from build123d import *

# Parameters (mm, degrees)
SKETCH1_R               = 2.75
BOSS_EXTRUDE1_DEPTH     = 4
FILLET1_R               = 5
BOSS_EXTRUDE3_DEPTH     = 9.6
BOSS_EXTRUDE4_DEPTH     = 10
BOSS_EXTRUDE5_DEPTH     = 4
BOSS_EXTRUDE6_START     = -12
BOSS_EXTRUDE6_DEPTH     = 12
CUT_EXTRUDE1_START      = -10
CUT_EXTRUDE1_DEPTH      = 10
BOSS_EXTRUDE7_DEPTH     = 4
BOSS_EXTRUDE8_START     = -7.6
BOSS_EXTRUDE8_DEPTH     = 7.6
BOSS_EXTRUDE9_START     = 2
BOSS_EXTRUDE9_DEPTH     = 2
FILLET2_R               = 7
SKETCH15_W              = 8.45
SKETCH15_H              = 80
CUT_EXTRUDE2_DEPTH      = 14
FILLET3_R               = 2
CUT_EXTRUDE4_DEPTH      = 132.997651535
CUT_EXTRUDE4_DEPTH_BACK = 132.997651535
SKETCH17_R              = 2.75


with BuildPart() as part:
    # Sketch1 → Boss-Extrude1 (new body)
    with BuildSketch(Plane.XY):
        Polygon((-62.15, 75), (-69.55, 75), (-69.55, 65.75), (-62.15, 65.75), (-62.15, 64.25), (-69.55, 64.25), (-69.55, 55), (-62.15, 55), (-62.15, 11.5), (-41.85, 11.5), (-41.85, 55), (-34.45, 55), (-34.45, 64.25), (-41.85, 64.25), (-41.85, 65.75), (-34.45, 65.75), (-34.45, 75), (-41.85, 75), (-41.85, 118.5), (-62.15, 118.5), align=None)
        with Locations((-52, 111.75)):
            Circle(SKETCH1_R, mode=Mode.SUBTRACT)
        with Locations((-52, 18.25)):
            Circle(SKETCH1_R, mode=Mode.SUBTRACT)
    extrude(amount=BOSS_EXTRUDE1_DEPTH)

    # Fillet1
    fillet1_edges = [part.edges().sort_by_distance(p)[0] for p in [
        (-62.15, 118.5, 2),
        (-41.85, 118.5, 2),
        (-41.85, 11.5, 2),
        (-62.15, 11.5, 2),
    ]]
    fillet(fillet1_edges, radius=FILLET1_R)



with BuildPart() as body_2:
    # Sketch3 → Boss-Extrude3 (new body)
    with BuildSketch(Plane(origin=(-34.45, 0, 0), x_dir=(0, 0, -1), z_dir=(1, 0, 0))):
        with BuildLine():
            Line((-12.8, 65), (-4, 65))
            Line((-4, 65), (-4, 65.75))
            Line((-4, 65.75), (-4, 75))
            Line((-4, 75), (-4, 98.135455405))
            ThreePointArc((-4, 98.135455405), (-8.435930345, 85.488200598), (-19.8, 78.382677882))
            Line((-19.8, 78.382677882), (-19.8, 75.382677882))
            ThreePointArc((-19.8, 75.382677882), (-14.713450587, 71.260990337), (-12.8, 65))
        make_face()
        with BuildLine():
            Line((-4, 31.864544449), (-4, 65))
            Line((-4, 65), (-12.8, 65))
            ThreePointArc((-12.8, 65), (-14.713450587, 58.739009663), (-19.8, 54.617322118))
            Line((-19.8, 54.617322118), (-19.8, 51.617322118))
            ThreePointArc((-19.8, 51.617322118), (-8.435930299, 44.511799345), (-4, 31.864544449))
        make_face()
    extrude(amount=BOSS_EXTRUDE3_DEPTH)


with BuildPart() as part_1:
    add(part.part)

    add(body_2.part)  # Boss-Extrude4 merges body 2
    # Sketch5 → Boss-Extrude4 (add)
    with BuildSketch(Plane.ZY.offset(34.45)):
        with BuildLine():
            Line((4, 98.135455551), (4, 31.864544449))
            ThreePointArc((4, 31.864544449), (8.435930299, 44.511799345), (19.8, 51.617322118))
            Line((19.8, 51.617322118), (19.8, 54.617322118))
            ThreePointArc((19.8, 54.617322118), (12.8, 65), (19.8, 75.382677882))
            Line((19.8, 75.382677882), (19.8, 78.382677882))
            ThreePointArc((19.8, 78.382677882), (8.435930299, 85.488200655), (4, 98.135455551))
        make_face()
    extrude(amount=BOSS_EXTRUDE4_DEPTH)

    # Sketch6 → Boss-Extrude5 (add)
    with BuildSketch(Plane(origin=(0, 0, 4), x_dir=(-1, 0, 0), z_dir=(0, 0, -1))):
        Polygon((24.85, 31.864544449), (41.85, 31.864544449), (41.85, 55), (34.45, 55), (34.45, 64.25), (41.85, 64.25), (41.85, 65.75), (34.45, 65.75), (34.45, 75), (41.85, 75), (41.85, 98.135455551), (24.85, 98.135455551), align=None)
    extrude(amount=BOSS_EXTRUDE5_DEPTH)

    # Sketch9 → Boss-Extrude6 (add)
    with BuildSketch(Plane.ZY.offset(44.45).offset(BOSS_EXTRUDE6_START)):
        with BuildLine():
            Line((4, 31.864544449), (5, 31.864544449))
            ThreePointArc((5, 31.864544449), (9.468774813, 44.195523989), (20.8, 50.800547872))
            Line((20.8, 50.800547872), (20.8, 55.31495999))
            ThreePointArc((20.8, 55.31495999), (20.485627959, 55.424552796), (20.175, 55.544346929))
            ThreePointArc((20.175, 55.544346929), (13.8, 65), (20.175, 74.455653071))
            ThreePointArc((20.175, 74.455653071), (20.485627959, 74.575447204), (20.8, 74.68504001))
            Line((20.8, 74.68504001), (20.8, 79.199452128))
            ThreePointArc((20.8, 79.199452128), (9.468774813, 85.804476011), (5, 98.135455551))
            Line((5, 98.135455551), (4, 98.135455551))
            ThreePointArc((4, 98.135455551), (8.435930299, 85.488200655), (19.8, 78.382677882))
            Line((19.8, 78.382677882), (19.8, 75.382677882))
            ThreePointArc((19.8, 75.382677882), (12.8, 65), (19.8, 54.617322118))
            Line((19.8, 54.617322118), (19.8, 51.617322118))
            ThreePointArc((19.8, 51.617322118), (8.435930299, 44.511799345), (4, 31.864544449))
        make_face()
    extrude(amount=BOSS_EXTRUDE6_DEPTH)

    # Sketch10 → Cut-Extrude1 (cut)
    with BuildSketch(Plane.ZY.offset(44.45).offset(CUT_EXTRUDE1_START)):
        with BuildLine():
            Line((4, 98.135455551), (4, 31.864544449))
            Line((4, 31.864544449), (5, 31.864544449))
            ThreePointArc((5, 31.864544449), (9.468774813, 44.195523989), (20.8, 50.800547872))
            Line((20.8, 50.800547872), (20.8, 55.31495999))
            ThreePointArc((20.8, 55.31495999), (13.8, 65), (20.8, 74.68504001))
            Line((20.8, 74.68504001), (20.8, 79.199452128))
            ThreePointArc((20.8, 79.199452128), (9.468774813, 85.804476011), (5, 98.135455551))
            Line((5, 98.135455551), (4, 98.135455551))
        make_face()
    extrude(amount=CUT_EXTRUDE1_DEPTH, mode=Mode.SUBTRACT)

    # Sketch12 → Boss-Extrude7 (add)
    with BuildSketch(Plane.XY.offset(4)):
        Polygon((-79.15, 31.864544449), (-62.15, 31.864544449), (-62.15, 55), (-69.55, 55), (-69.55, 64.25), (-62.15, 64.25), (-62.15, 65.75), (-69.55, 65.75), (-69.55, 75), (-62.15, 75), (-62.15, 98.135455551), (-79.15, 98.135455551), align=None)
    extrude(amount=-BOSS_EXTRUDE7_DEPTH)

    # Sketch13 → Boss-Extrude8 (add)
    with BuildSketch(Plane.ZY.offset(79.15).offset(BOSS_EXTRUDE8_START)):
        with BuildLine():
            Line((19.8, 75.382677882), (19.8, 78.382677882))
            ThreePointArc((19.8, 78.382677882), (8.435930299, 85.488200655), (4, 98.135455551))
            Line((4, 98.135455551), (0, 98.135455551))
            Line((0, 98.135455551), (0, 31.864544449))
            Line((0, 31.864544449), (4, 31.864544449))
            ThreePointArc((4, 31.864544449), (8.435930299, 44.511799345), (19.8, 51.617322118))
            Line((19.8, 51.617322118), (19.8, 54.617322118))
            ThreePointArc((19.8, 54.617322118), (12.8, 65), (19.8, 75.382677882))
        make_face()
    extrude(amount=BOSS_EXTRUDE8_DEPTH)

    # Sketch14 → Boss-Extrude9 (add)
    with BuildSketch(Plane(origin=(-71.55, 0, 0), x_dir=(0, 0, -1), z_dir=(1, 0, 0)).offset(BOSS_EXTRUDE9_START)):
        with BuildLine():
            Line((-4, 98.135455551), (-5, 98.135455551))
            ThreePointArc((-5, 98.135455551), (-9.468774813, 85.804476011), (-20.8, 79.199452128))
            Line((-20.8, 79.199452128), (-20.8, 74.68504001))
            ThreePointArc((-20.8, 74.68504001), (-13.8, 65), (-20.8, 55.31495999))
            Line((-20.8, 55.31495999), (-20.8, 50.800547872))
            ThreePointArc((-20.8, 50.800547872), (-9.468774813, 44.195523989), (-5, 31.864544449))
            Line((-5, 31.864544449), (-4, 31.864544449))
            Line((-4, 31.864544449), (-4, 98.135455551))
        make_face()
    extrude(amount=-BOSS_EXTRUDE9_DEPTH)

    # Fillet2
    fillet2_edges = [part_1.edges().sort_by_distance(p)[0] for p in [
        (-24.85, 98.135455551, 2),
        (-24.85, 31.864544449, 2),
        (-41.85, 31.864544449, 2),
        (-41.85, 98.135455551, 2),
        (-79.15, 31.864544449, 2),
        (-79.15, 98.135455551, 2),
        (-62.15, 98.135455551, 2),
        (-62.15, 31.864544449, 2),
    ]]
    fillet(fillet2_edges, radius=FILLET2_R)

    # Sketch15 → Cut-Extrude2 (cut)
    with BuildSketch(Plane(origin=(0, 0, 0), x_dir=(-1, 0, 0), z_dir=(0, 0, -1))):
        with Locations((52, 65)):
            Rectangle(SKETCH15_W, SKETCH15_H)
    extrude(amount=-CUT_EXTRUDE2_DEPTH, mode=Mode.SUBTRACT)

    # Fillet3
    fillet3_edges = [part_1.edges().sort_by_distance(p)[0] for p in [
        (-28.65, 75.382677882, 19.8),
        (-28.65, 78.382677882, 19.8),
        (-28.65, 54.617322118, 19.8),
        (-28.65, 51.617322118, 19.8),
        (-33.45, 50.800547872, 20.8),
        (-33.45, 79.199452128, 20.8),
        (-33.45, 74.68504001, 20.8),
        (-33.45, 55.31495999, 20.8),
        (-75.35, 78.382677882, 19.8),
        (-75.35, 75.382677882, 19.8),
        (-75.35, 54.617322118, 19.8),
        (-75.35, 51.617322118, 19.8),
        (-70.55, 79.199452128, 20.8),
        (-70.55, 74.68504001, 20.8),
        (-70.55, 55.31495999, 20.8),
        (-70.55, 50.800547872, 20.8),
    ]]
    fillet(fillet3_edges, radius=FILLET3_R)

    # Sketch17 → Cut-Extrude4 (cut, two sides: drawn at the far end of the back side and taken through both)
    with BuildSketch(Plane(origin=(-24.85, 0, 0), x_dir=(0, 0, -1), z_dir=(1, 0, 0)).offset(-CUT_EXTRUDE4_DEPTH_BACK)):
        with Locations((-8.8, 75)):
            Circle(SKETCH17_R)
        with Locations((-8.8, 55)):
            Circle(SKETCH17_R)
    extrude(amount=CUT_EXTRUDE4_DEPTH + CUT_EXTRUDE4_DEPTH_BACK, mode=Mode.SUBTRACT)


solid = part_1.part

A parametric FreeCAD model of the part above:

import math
import FreeCAD as App
import Part
import Sketcher

V = App.Vector


def edges_at(feature, points):
    """Names of the edges that pass closest to the given points."""
    edges = feature.Shape.Edges
    near = lambda p: min(range(len(edges)), key=lambda i: edges[i].distToShape(Part.Vertex(*p))[0])
    return sorted({f"Edge{near(p) + 1}" for p in points})


def add_polygon(sketch, points):
    """Adds a closed chain of lines whose ends are joined by coincident constraints."""
    first, n = sketch.GeometryCount, len(points)
    for a, b in zip(points, points[1:] + points[:1]):
        sketch.addGeometry(Part.LineSegment(App.Vector(*a, 0), App.Vector(*b, 0)), False)
    for i in range(n):
        sketch.addConstraint(Sketcher.Constraint("Coincident", first + i, 2, first + (i + 1) % n, 1))

doc = App.newDocument("Part")
body = doc.addObject("PartDesign::Body", "Body")

sketch1 = doc.addObject("Sketcher::SketchObject", "Sketch")
body.addObject(sketch1)
sketch1.AttachmentSupport = (doc.XY_Plane, [""])
sketch1.MapMode = "FlatFace"
add_polygon(sketch1, [(-62.1, 75), (-69.5, 75), (-69.5, 65.8), (-62.1, 65.8), (-62.1, 64.2), (-69.5, 64.2), (-69.5, 55), (-62.1, 55), (-62.1, 11.5), (-41.9, 11.5), (-41.9, 55), (-34.5, 55), (-34.5, 64.2), (-41.9, 64.2), (-41.9, 65.8), (-34.5, 65.8), (-34.5, 75), (-41.9, 75), (-41.9, 118.5), (-62.1, 118.5)])
sketch1.addGeometry(Part.Circle(V(-52, 18.2, 0), V(0, 0, 1), 2.8), False)
sketch1.addGeometry(Part.Circle(V(-52, 111.8, 0), V(0, 0, 1), 2.8), False)
sketch1.addConstraint(Sketcher.Constraint("Horizontal", 0))
sketch1.addConstraint(Sketcher.Constraint("Vertical", 1))
sketch1.addConstraint(Sketcher.Constraint("Horizontal", 2))
sketch1.addConstraint(Sketcher.Constraint("Vertical", 3))
sketch1.addConstraint(Sketcher.Constraint("Horizontal", 4))
sketch1.addConstraint(Sketcher.Constraint("Vertical", 5))
sketch1.addConstraint(Sketcher.Constraint("Horizontal", 6))
sketch1.addConstraint(Sketcher.Constraint("Vertical", 7))
sketch1.addConstraint(Sketcher.Constraint("Horizontal", 8))
sketch1.addConstraint(Sketcher.Constraint("Vertical", 9))
sketch1.addConstraint(Sketcher.Constraint("Horizontal", 10))
sketch1.addConstraint(Sketcher.Constraint("Vertical", 11))
sketch1.addConstraint(Sketcher.Constraint("Horizontal", 12))
sketch1.addConstraint(Sketcher.Constraint("Vertical", 13))
sketch1.addConstraint(Sketcher.Constraint("Horizontal", 14))
sketch1.addConstraint(Sketcher.Constraint("Vertical", 15))
sketch1.addConstraint(Sketcher.Constraint("Horizontal", 16))
sketch1.addConstraint(Sketcher.Constraint("Vertical", 17))
sketch1.addConstraint(Sketcher.Constraint("Horizontal", 18))
sketch1.addConstraint(Sketcher.Constraint("Vertical", 19))
sketch1.addConstraint(Sketcher.Constraint("Equal", 20, 21))
sketch1.addConstraint(Sketcher.Constraint("Horizontal", 6, 2, 9, 2))
sketch1.addConstraint(Sketcher.Constraint("Horizontal", 4, 2, 11, 2))
sketch1.addConstraint(Sketcher.Constraint("Horizontal", 2, 2, 13, 2))
sketch1.addConstraint(Sketcher.Constraint("Horizontal", 0, 2, 15, 2))
sketch1.addConstraint(Sketcher.Constraint("Vertical", 20, 3, 21, 3))
sketch1.addConstraint(Sketcher.Constraint("Vertical", 1, 2, 4, 2))
sketch1.addConstraint(Sketcher.Constraint("Vertical", 3, 2, 6, 2))
sketch1.addConstraint(Sketcher.Constraint("Vertical", 9, 2, 12, 2))
sketch1.addConstraint(Sketcher.Constraint("Vertical", 11, 2, 14, 2))
sketch1.addConstraint(Sketcher.Constraint("Vertical", 13, 2, 16, 2))
sketch1.addConstraint(Sketcher.Constraint("Vertical", 7, 2, 18, 2))
sketch1.addConstraint(Sketcher.Constraint("Equal", 6, 10))
sketch1.addConstraint(Sketcher.Constraint("Equal", 1, 5))
sketch1.addConstraint(Sketcher.Constraint("Equal", 9, 17))
sketch1.addConstraint(Sketcher.Constraint("Diameter", 20, 5.5))
sketch1.addConstraint(Sketcher.Constraint("DistanceX", 0, 2, 0, 1, 7.4))
sketch1.addConstraint(Sketcher.Constraint("DistanceX", 8, 1, 8, 2, 20.3))
sketch1.addConstraint(Sketcher.Constraint("DistanceY", 3, 2, 3, 1, 1.5))
sketch1.addConstraint(Sketcher.Constraint("DistanceY", 7, 2, 7, 1, 43.5))
sketch1.addConstraint(Sketcher.Constraint("DistanceX", 20, 3, -1, 1, 52.0))
sketch1.addConstraint(Sketcher.Constraint("DistanceY", -1, 1, 0, 2, 75.0))
sketch1.addConstraint(Sketcher.Constraint("DistanceY", -1, 1, 5, 2, 55.0))
sketch1.addConstraint(Sketcher.Constraint("DistanceY", 1, 2, 21, 3, 46.0))
sketch1.addConstraint(Sketcher.Constraint("DistanceY", 20, 3, 3, 2, 46.0))
sketch1.addConstraint(Sketcher.Constraint("DistanceX", 0, 2, -1, 1, 69.55))
pad1 = doc.addObject("PartDesign::Pad", "Pad")
body.addObject(pad1)
pad1.Profile = sketch1
pad1.Length = 4
doc.recompute()

fillet = doc.addObject("PartDesign::Fillet", "Fillet")
body.addObject(fillet)
fillet.Base = (pad1, edges_at(pad1, [
    (-62.15, 118.5, 2),
    (-41.85, 118.5, 2),
    (-41.85, 11.5, 2),
    (-62.15, 11.5, 2),
]))
fillet.Radius = 5
body2 = doc.addObject("PartDesign::Body", "Body001")

sketch2 = doc.addObject("Sketcher::SketchObject", "Sketch001")
body2.addObject(sketch2)
sketch2.AttachmentSupport = (doc.getObject("YZ_Plane001"), [""])
sketch2.MapMode = "FlatFace"
sketch2.AttachmentOffset = App.Placement(V(0, 0, -34.45), App.Rotation())
sketch2.addGeometry(Part.ArcOfCircle(Part.Circle(V(98.1, 24.2, 0), V(0, 0, 1), 20.2), math.radians(-167), math.radians(-90)), False)
sketch2.addGeometry(Part.LineSegment(V(78.4, 19.8, 0), V(75.4, 19.8, 0)), False)
sketch2.addGeometry(Part.ArcOfCircle(Part.Circle(V(65, 24, 0), V(0, 0, 1), 11.2), math.radians(-90), math.radians(-22)), False)
sketch2.addGeometry(Part.ArcOfCircle(Part.Circle(V(65, 24, 0), V(0, 0, 1), 11.2), math.radians(-158), math.radians(-90)), False)
sketch2.addGeometry(Part.LineSegment(V(54.6, 19.8, 0), V(51.6, 19.8, 0)), False)
sketch2.addGeometry(Part.ArcOfCircle(Part.Circle(V(31.9, 24.2, 0), V(0, 0, 1), 20.2), math.radians(-90), math.radians(-13)), False)
sketch2.addGeometry(Part.LineSegment(V(31.9, 4, 0), V(98.1, 4, 0)), False)
sketch2.addConstraint(Sketcher.Constraint("Coincident", 0, 1, 1, 1))
sketch2.addConstraint(Sketcher.Constraint("Coincident", 1, 2, 2, 2))
sketch2.addConstraint(Sketcher.Constraint("Tangent", 2, 1, 3, 2))
sketch2.addConstraint(Sketcher.Constraint("Coincident", 3, 1, 4, 1))
sketch2.addConstraint(Sketcher.Constraint("Coincident", 4, 2, 5, 2))
sketch2.addConstraint(Sketcher.Constraint("Tangent", 5, 1, 6, 1))
sketch2.addConstraint(Sketcher.Constraint("Tangent", 6, 2, 0, 2))
sketch2.addConstraint(Sketcher.Constraint("Horizontal", 1))
sketch2.addConstraint(Sketcher.Constraint("Horizontal", 4))
sketch2.addConstraint(Sketcher.Constraint("Horizontal", 6))
sketch2.addConstraint(Sketcher.Constraint("Equal", 2, 3))
sketch2.addConstraint(Sketcher.Constraint("Equal", 0, 5))
sketch2.addConstraint(Sketcher.Constraint("Horizontal", 1, 2, 3, 1))
sketch2.addConstraint(Sketcher.Constraint("Vertical", 3, 3, 2, 1))
sketch2.addConstraint(Sketcher.Constraint("Equal", 1, 4))
sketch2.addConstraint(Sketcher.Constraint("Radius", 2, 11.2))
sketch2.addConstraint(Sketcher.Constraint("DistanceX", 1, 2, 1, 1, 3.0))
sketch2.addConstraint(Sketcher.Constraint("DistanceX", -1, 1, 2, 3, 65.0))
sketch2.addConstraint(Sketcher.Constraint("DistanceY", -1, 1, 2, 3, 24.0))
sketch2.addConstraint(Sketcher.Constraint("DistanceY", -1, 1, 5, 1, 4.0))
sketch2.addConstraint(Sketcher.Constraint("DistanceY", 2, 1, 1, 2, 7.0))
sketch2.addConstraint(Sketcher.Constraint("Radius", 0, 20.247222))
pad2 = doc.addObject("PartDesign::Pad", "Pad001")
body2.addObject(pad2)
pad2.Profile = sketch2
pad2.Length = 9.6
body.AllowCompound = True
doc.recompute()

boolean = doc.addObject("PartDesign::Boolean", "Boolean")
body.addObject(boolean)
boolean.Type = "Fuse"
boolean.addObjects([body2])

sketch3 = doc.addObject("Sketcher::SketchObject", "Sketch002")
body.addObject(sketch3)
sketch3.AttachmentSupport = (doc.YZ_Plane, [""])
sketch3.MapMode = "FlatFace"
sketch3.AttachmentOffset = App.Placement(V(0, 0, -34.45), App.Rotation())
sketch3.addGeometry(Part.LineSegment(V(98.1, 4, 0), V(31.9, 4, 0)), False)
sketch3.addGeometry(Part.ArcOfCircle(Part.Circle(V(31.9, 24.2, 0), V(0, 0, 1), 20.2), math.radians(-90), math.radians(-13)), False)
sketch3.addGeometry(Part.LineSegment(V(51.6, 19.8, 0), V(54.6, 19.8, 0)), False)
sketch3.addGeometry(Part.ArcOfCircle(Part.Circle(V(65, 24, 0), V(0, 0, 1), 11.2), math.radians(-158), math.radians(-22)), False)
sketch3.addGeometry(Part.LineSegment(V(75.4, 19.8, 0), V(78.4, 19.8, 0)), False)
sketch3.addGeometry(Part.ArcOfCircle(Part.Circle(V(98.1, 24.2, 0), V(0, 0, 1), 20.2), math.radians(-167), math.radians(-90)), False)
sketch3.addConstraint(Sketcher.Constraint("Tangent", 0, 2, 1, 1))
sketch3.addConstraint(Sketcher.Constraint("Coincident", 1, 2, 2, 1))
sketch3.addConstraint(Sketcher.Constraint("Coincident", 2, 2, 3, 1))
sketch3.addConstraint(Sketcher.Constraint("Coincident", 3, 2, 4, 1))
sketch3.addConstraint(Sketcher.Constraint("Coincident", 4, 2, 5, 1))
sketch3.addConstraint(Sketcher.Constraint("Tangent", 5, 2, 0, 1))
sketch3.addConstraint(Sketcher.Constraint("Horizontal", 0))
sketch3.addConstraint(Sketcher.Constraint("Horizontal", 2))
sketch3.addConstraint(Sketcher.Constraint("Horizontal", 4))
sketch3.addConstraint(Sketcher.Constraint("Equal", 1, 5))
sketch3.addConstraint(Sketcher.Constraint("Horizontal", 2, 2, 3, 2))
sketch3.addConstraint(Sketcher.Constraint("Equal", 2, 4))
sketch3.addConstraint(Sketcher.Constraint("Radius", 3, 11.2))
sketch3.addConstraint(Sketcher.Constraint("DistanceX", 2, 1, 2, 2, 3.0))
sketch3.addConstraint(Sketcher.Constraint("DistanceX", -1, 1, 3, 3, 65.0))
sketch3.addConstraint(Sketcher.Constraint("DistanceY", -1, 1, 3, 3, 24.0))
sketch3.addConstraint(Sketcher.Constraint("DistanceY", -1, 1, 0, 2, 4.0))
sketch3.addConstraint(Sketcher.Constraint("DistanceY", -1, 1, 1, 2, 19.8))
sketch3.addConstraint(Sketcher.Constraint("Radius", 1, 20.247222))
pad3 = doc.addObject("PartDesign::Pad", "Pad002")
body.addObject(pad3)
pad3.Profile = sketch3
pad3.Length = 10
pad3.Reversed = True

sketch4 = doc.addObject("Sketcher::SketchObject", "Sketch003")
body.addObject(sketch4)
sketch4.AttachmentSupport = (doc.XY_Plane, [""])
sketch4.MapMode = "FlatFace"
sketch4.AttachmentOffset = App.Placement(V(0, 0, 4), App.Rotation())
add_polygon(sketch4, [(-24.9, 31.9), (-41.9, 31.9), (-41.9, 55), (-34.5, 55), (-34.5, 64.2), (-41.9, 64.2), (-41.9, 65.8), (-34.5, 65.8), (-34.5, 75), (-41.9, 75), (-41.9, 98.1), (-24.9, 98.1)])
sketch4.addConstraint(Sketcher.Constraint("Horizontal", 0))
sketch4.addConstraint(Sketcher.Constraint("Vertical", 1))
sketch4.addConstraint(Sketcher.Constraint("Horizontal", 2))
sketch4.addConstraint(Sketcher.Constraint("Vertical", 3))
sketch4.addConstraint(Sketcher.Constraint("Horizontal", 4))
sketch4.addConstraint(Sketcher.Constraint("Vertical", 5))
sketch4.addConstraint(Sketcher.Constraint("Horizontal", 6))
sketch4.addConstraint(Sketcher.Constraint("Vertical", 7))
sketch4.addConstraint(Sketcher.Constraint("Horizontal", 8))
sketch4.addConstraint(Sketcher.Constraint("Vertical", 9))
sketch4.addConstraint(Sketcher.Constraint("Horizontal", 10))
sketch4.addConstraint(Sketcher.Constraint("Vertical", 11))
sketch4.addConstraint(Sketcher.Constraint("Vertical", 1, 2, 4, 2))
sketch4.addConstraint(Sketcher.Constraint("Vertical", 3, 2, 6, 2))
sketch4.addConstraint(Sketcher.Constraint("Vertical", 5, 2, 8, 2))
sketch4.addConstraint(Sketcher.Constraint("Equal", 3, 7))
sketch4.addConstraint(Sketcher.Constraint("Equal", 1, 9))
sketch4.addConstraint(Sketcher.Constraint("DistanceX", 0, 2, 0, 1, 17.0))
sketch4.addConstraint(Sketcher.Constraint("DistanceX", 2, 1, 2, 2, 7.4))
sketch4.addConstraint(Sketcher.Constraint("DistanceY", 5, 1, 5, 2, 1.5))
sketch4.addConstraint(Sketcher.Constraint("DistanceY", -1, 1, 1, 2, 55.0))
sketch4.addConstraint(Sketcher.Constraint("DistanceY", -1, 1, 7, 2, 75.0))
sketch4.addConstraint(Sketcher.Constraint("DistanceX", 0, 2, -1, 1, 41.85))
sketch4.addConstraint(Sketcher.Constraint("DistanceY", 11, 2, 11, 1, 66.270911))
pad4 = doc.addObject("PartDesign::Pad", "Pad003")
body.addObject(pad4)
pad4.Profile = sketch4
pad4.Length = 4
pad4.Reversed = True

sketch5 = doc.addObject("Sketcher::SketchObject", "Sketch004")
body.addObject(sketch5)
sketch5.AttachmentSupport = (doc.YZ_Plane, [""])
sketch5.MapMode = "FlatFace"
sketch5.AttachmentOffset = App.Placement(V(0, 0, -32.45), App.Rotation())
sketch5.addGeometry(Part.LineSegment(V(31.9, 4, 0), V(31.9, 5, 0)), False)
sketch5.addGeometry(Part.ArcOfCircle(Part.Circle(V(31.9, 24.2, 0), V(0, 0, 1), 19.2), math.radians(-90), math.radians(-10)), False)
sketch5.addGeometry(Part.LineSegment(V(50.8, 20.8, 0), V(55.3, 20.8, 0)), False)
sketch5.addGeometry(Part.ArcOfCircle(Part.Circle(V(65, 24, 0), V(0, 0, 1), 10.2), math.radians(-161.72), math.radians(-157.98)), False)
sketch5.addGeometry(Part.ArcOfCircle(Part.Circle(V(65, 24, 0), V(0, 0, 1), 10.2), math.radians(-158), math.radians(-22)), False)
sketch5.addGeometry(Part.ArcOfCircle(Part.Circle(V(65, 24, 0), V(0, 0, 1), 10.2), math.radians(-22.02), math.radians(-18.28)), False)
sketch5.addGeometry(Part.LineSegment(V(74.7, 20.8, 0), V(79.2, 20.8, 0)), False)
sketch5.addGeometry(Part.ArcOfCircle(Part.Circle(V(98.1, 24.2, 0), V(0, 0, 1), 19.2), math.radians(-170), math.radians(-90)), False)
sketch5.addGeometry(Part.LineSegment(V(98.1, 5, 0), V(98.1, 4, 0)), False)
sketch5.addGeometry(Part.ArcOfCircle(Part.Circle(V(98.1, 24.2, 0), V(0, 0, 1), 20.2), math.radians(-167), math.radians(-90)), False)
sketch5.addGeometry(Part.LineSegment(V(78.4, 19.8, 0), V(75.4, 19.8, 0)), False)
sketch5.addGeometry(Part.ArcOfCircle(Part.Circle(V(65, 24, 0), V(0, 0, 1), 11.2), math.radians(-158), math.radians(-22)), False)
sketch5.addGeometry(Part.LineSegment(V(54.6, 19.8, 0), V(51.6, 19.8, 0)), False)
sketch5.addGeometry(Part.ArcOfCircle(Part.Circle(V(31.9, 24.2, 0), V(0, 0, 1), 20.2), math.radians(-90), math.radians(-13)), False)
sketch5.addConstraint(Sketcher.Constraint("Coincident", 0, 2, 1, 1))
sketch5.addConstraint(Sketcher.Constraint("Coincident", 1, 2, 2, 1))
sketch5.addConstraint(Sketcher.Constraint("Coincident", 2, 2, 3, 1))
sketch5.addConstraint(Sketcher.Constraint("Tangent", 3, 2, 4, 1))
sketch5.addConstraint(Sketcher.Constraint("Tangent", 4, 2, 5, 1))
sketch5.addConstraint(Sketcher.Constraint("Coincident", 5, 2, 6, 1))
sketch5.addConstraint(Sketcher.Constraint("Coincident", 6, 2, 7, 1))
sketch5.addConstraint(Sketcher.Constraint("Coincident", 7, 2, 8, 1))
sketch5.addConstraint(Sketcher.Constraint("Coincident", 8, 2, 9, 2))
sketch5.addConstraint(Sketcher.Constraint("Coincident", 9, 1, 10, 1))
sketch5.addConstraint(Sketcher.Constraint("Coincident", 10, 2, 11, 2))
sketch5.addConstraint(Sketcher.Constraint("Coincident", 11, 1, 12, 1))
sketch5.addConstraint(Sketcher.Constraint("Coincident", 12, 2, 13, 2))
sketch5.addConstraint(Sketcher.Constraint("Coincident", 13, 1, 0, 1))
sketch5.addConstraint(Sketcher.Constraint("Vertical", 0))
sketch5.addConstraint(Sketcher.Constraint("Horizontal", 2))
sketch5.addConstraint(Sketcher.Constraint("Horizontal", 6))
sketch5.addConstraint(Sketcher.Constraint("Vertical", 8))
sketch5.addConstraint(Sketcher.Constraint("Horizontal", 10))
sketch5.addConstraint(Sketcher.Constraint("Horizontal", 12))
sketch5.addConstraint(Sketcher.Constraint("Coincident", 5, 3, 3, 3))
sketch5.addConstraint(Sketcher.Constraint("Coincident", 9, 3, 7, 3))
sketch5.addConstraint(Sketcher.Constraint("Coincident", 11, 3, 3, 3))
sketch5.addConstraint(Sketcher.Constraint("Coincident", 13, 3, 1, 3))
sketch5.addConstraint(Sketcher.Constraint("Equal", 1, 7))
sketch5.addConstraint(Sketcher.Constraint("Equal", 9, 13))
sketch5.addConstraint(Sketcher.Constraint("Horizontal", 1, 3, 7, 3))
sketch5.addConstraint(Sketcher.Constraint("Horizontal", 3, 2, 4, 2))
sketch5.addConstraint(Sketcher.Constraint("Horizontal", 2, 2, 5, 2))
sketch5.addConstraint(Sketcher.Constraint("Horizontal", 10, 2, 11, 1))
sketch5.addConstraint(Sketcher.Constraint("Vertical", 13, 3, 0, 2))
sketch5.addConstraint(Sketcher.Constraint("Vertical", 9, 3, 7, 2))
sketch5.addConstraint(Sketcher.Constraint("Equal", 2, 6))
sketch5.addConstraint(Sketcher.Constraint("Radius", 3, 10.2))
sketch5.addConstraint(Sketcher.Constraint("Radius", 11, 11.2))
sketch5.addConstraint(Sketcher.Constraint("DistanceX", 10, 2, 10, 1, 3.0))
sketch5.addConstraint(Sketcher.Constraint("DistanceY", 0, 1, 0, 2, 1.0))
sketch5.addConstraint(Sketcher.Constraint("DistanceX", -1, 1, 3, 3, 65.0))
sketch5.addConstraint(Sketcher.Constraint("DistanceY", -1, 1, 3, 3, 24.0))
sketch5.addConstraint(Sketcher.Constraint("DistanceY", -1, 1, 0, 2, 5.0))
sketch5.addConstraint(Sketcher.Constraint("DistanceY", 9, 1, 6, 2, 1.0))
sketch5.addConstraint(Sketcher.Constraint("DistanceY", -1, 1, 1, 2, 20.8))
sketch5.addConstraint(Sketcher.Constraint("DistanceY", -1, 1, 3, 2, 20.175))
sketch5.addConstraint(Sketcher.Constraint("Radius", 1, 19.247222))
pad5 = doc.addObject("PartDesign::Pad", "Pad004")
body.addObject(pad5)
pad5.Profile = sketch5
pad5.Length = 12
pad5.Reversed = True

sketch6 = doc.addObject("Sketcher::SketchObject", "Sketch005")
body.addObject(sketch6)
sketch6.AttachmentSupport = (doc.YZ_Plane, [""])
sketch6.MapMode = "FlatFace"
sketch6.AttachmentOffset = App.Placement(V(0, 0, -34.45), App.Rotation())
sketch6.addGeometry(Part.LineSegment(V(98.1, 4, 0), V(31.9, 4, 0)), False)
sketch6.addGeometry(Part.LineSegment(V(31.9, 4, 0), V(31.9, 5, 0)), False)
sketch6.addGeometry(Part.ArcOfCircle(Part.Circle(V(31.9, 24.2, 0), V(0, 0, 1), 19.2), math.radians(-90), math.radians(-10)), False)
sketch6.addGeometry(Part.LineSegment(V(50.8, 20.8, 0), V(55.3, 20.8, 0)), False)
sketch6.addGeometry(Part.ArcOfCircle(Part.Circle(V(65, 24, 0), V(0, 0, 1), 10.2), math.radians(-162), math.radians(-18)), False)
sketch6.addGeometry(Part.LineSegment(V(74.7, 20.8, 0), V(79.2, 20.8, 0)), False)
sketch6.addGeometry(Part.ArcOfCircle(Part.Circle(V(98.1, 24.2, 0), V(0, 0, 1), 19.2), math.radians(-170), math.radians(-90)), False)
sketch6.addGeometry(Part.LineSegment(V(98.1, 5, 0), V(98.1, 4, 0)), False)
sketch6.addConstraint(Sketcher.Constraint("Coincident", 0, 2, 1, 1))
sketch6.addConstraint(Sketcher.Constraint("Coincident", 1, 2, 2, 1))
sketch6.addConstraint(Sketcher.Constraint("Coincident", 2, 2, 3, 1))
sketch6.addConstraint(Sketcher.Constraint("Coincident", 3, 2, 4, 1))
sketch6.addConstraint(Sketcher.Constraint("Coincident", 4, 2, 5, 1))
sketch6.addConstraint(Sketcher.Constraint("Coincident", 5, 2, 6, 1))
sketch6.addConstraint(Sketcher.Constraint("Coincident", 6, 2, 7, 1))
sketch6.addConstraint(Sketcher.Constraint("Coincident", 7, 2, 0, 1))
sketch6.addConstraint(Sketcher.Constraint("Horizontal", 0))
sketch6.addConstraint(Sketcher.Constraint("Vertical", 1))
sketch6.addConstraint(Sketcher.Constraint("Horizontal", 3))
sketch6.addConstraint(Sketcher.Constraint("Horizontal", 5))
sketch6.addConstraint(Sketcher.Constraint("Vertical", 7))
sketch6.addConstraint(Sketcher.Constraint("Equal", 2, 6))
sketch6.addConstraint(Sketcher.Constraint("Horizontal", 2, 3, 6, 3))
sketch6.addConstraint(Sketcher.Constraint("Horizontal", 3, 2, 4, 2))
sketch6.addConstraint(Sketcher.Constraint("Vertical", 2, 3, 0, 2))
sketch6.addConstraint(Sketcher.Constraint("Equal", 3, 5))
sketch6.addConstraint(Sketcher.Constraint("Radius", 4, 10.2))
sketch6.addConstraint(Sketcher.Constraint("DistanceY", 1, 1, 1, 2, 1.0))
sketch6.addConstraint(Sketcher.Constraint("DistanceX", -1, 1, 4, 3, 65.0))
sketch6.addConstraint(Sketcher.Constraint("DistanceY", -1, 1, 4, 3, 24.0))
sketch6.addConstraint(Sketcher.Constraint("DistanceY", -1, 1, 0, 2, 4.0))
sketch6.addConstraint(Sketcher.Constraint("DistanceY", -1, 1, 2, 2, 20.8))
sketch6.addConstraint(Sketcher.Constraint("Radius", 2, 19.247222))
sketch6.addConstraint(Sketcher.Constraint("DistanceX", 0, 2, 0, 1, 66.270911))
sketch6.addConstraint(Sketcher.Constraint("DistanceX", 3, 1, 3, 2, 4.514412))
pocket1 = doc.addObject("PartDesign::Pocket", "Pocket")
body.addObject(pocket1)
pocket1.Profile = sketch6
pocket1.Length = 10

sketch7 = doc.addObject("Sketcher::SketchObject", "Sketch006")
body.addObject(sketch7)
sketch7.AttachmentSupport = (doc.XY_Plane, [""])
sketch7.MapMode = "FlatFace"
sketch7.AttachmentOffset = App.Placement(V(0, 0, 4), App.Rotation())
add_polygon(sketch7, [(-79.2, 31.9), (-62.1, 31.9), (-62.1, 55), (-69.5, 55), (-69.5, 64.2), (-62.1, 64.2), (-62.1, 65.8), (-69.5, 65.8), (-69.5, 75), (-62.1, 75), (-62.1, 98.1), (-79.2, 98.1)])
sketch7.addConstraint(Sketcher.Constraint("Horizontal", 0))
sketch7.addConstraint(Sketcher.Constraint("Vertical", 1))
sketch7.addConstraint(Sketcher.Constraint("Horizontal", 2))
sketch7.addConstraint(Sketcher.Constraint("Vertical", 3))
sketch7.addConstraint(Sketcher.Constraint("Horizontal", 4))
sketch7.addConstraint(Sketcher.Constraint("Vertical", 5))
sketch7.addConstraint(Sketcher.Constraint("Horizontal", 6))
sketch7.addConstraint(Sketcher.Constraint("Vertical", 7))
sketch7.addConstraint(Sketcher.Constraint("Horizontal", 8))
sketch7.addConstraint(Sketcher.Constraint("Vertical", 9))
sketch7.addConstraint(Sketcher.Constraint("Horizontal", 10))
sketch7.addConstraint(Sketcher.Constraint("Vertical", 11))
sketch7.addConstraint(Sketcher.Constraint("Vertical", 1, 2, 4, 2))
sketch7.addConstraint(Sketcher.Constraint("Vertical", 3, 2, 6, 2))
sketch7.addConstraint(Sketcher.Constraint("Vertical", 5, 2, 8, 2))
sketch7.addConstraint(Sketcher.Constraint("Equal", 3, 7))
sketch7.addConstraint(Sketcher.Constraint("Equal", 1, 9))
sketch7.addConstraint(Sketcher.Constraint("DistanceX", 0, 1, 0, 2, 17.0))
sketch7.addConstraint(Sketcher.Constraint("DistanceX", 2, 2, 2, 1, 7.4))
sketch7.addConstraint(Sketcher.Constraint("DistanceY", 5, 1, 5, 2, 1.5))
sketch7.addConstraint(Sketcher.Constraint("DistanceY", -1, 1, 1, 2, 55.0))
sketch7.addConstraint(Sketcher.Constraint("DistanceY", -1, 1, 7, 2, 75.0))
sketch7.addConstraint(Sketcher.Constraint("DistanceX", 0, 2, -1, 1, 62.15))
sketch7.addConstraint(Sketcher.Constraint("DistanceY", 11, 2, 11, 1, 66.270911))
pad6 = doc.addObject("PartDesign::Pad", "Pad005")
body.addObject(pad6)
pad6.Profile = sketch7
pad6.Length = 4
pad6.Reversed = True

sketch8 = doc.addObject("Sketcher::SketchObject", "Sketch007")
body.addObject(sketch8)
sketch8.AttachmentSupport = (doc.YZ_Plane, [""])
sketch8.MapMode = "FlatFace"
sketch8.AttachmentOffset = App.Placement(V(0, 0, -71.55), App.Rotation())
sketch8.addGeometry(Part.LineSegment(V(75.4, 19.8, 0), V(78.4, 19.8, 0)), False)
sketch8.addGeometry(Part.ArcOfCircle(Part.Circle(V(98.1, 24.2, 0), V(0, 0, 1), 20.2), math.radians(-167), math.radians(-90)), False)
sketch8.addGeometry(Part.LineSegment(V(98.1, 4, 0), V(98.1, 0, 0)), False)
sketch8.addGeometry(Part.LineSegment(V(98.1, 0, 0), V(31.9, 0, 0)), False)
sketch8.addGeometry(Part.LineSegment(V(31.9, 0, 0), V(31.9, 4, 0)), False)
sketch8.addGeometry(Part.ArcOfCircle(Part.Circle(V(31.9, 24.2, 0), V(0, 0, 1), 20.2), math.radians(-90), math.radians(-13)), False)
sketch8.addGeometry(Part.LineSegment(V(51.6, 19.8, 0), V(54.6, 19.8, 0)), False)
sketch8.addGeometry(Part.ArcOfCircle(Part.Circle(V(65, 24, 0), V(0, 0, 1), 11.2), math.radians(-158), math.radians(-22)), False)
sketch8.addConstraint(Sketcher.Constraint("Coincident", 0, 2, 1, 1))
sketch8.addConstraint(Sketcher.Constraint("Coincident", 1, 2, 2, 1))
sketch8.addConstraint(Sketcher.Constraint("Coincident", 2, 2, 3, 1))
sketch8.addConstraint(Sketcher.Constraint("Coincident", 3, 2, 4, 1))
sketch8.addConstraint(Sketcher.Constraint("Coincident", 4, 2, 5, 1))
sketch8.addConstraint(Sketcher.Constraint("Coincident", 5, 2, 6, 1))
sketch8.addConstraint(Sketcher.Constraint("Coincident", 6, 2, 7, 1))
sketch8.addConstraint(Sketcher.Constraint("Coincident", 7, 2, 0, 1))
sketch8.addConstraint(Sketcher.Constraint("Horizontal", 0))
sketch8.addConstraint(Sketcher.Constraint("Vertical", 2))
sketch8.addConstraint(Sketcher.Constraint("Horizontal", 3))
sketch8.addConstraint(Sketcher.Constraint("Vertical", 4))
sketch8.addConstraint(Sketcher.Constraint("Horizontal", 6))
sketch8.addConstraint(Sketcher.Constraint("Equal", 1, 5))
sketch8.addConstraint(Sketcher.Constraint("PointOnObject", 2, 2, -1))
sketch8.addConstraint(Sketcher.Constraint("Horizontal", 1, 3, 5, 3))
sketch8.addConstraint(Sketcher.Constraint("Horizontal", 0, 2, 5, 2))
sketch8.addConstraint(Sketcher.Constraint("Vertical", 5, 3, 3, 2))
sketch8.addConstraint(Sketcher.Constraint("Equal", 0, 6))
sketch8.addConstraint(Sketcher.Constraint("Radius", 7, 11.2))
sketch8.addConstraint(Sketcher.Constraint("DistanceX", 0, 1, 0, 2, 3.0))
sketch8.addConstraint(Sketcher.Constraint("DistanceY", 2, 2, 2, 1, 4.0))
sketch8.addConstraint(Sketcher.Constraint("DistanceX", -1, 1, 7, 3, 65.0))
sketch8.addConstraint(Sketcher.Constraint("DistanceY", -1, 1, 7, 3, 24.0))
sketch8.addConstraint(Sketcher.Constraint("DistanceY", -1, 1, 0, 2, 19.8))
sketch8.addConstraint(Sketcher.Constraint("Radius", 1, 20.247222))
sketch8.addConstraint(Sketcher.Constraint("DistanceX", 3, 2, 3, 1, 66.270911))
pad7 = doc.addObject("PartDesign::Pad", "Pad006")
body.addObject(pad7)
pad7.Profile = sketch8
pad7.Length = 7.6
pad7.Reversed = True

sketch9 = doc.addObject("Sketcher::SketchObject", "Sketch008")
body.addObject(sketch9)
sketch9.AttachmentSupport = (doc.YZ_Plane, [""])
sketch9.MapMode = "FlatFace"
sketch9.AttachmentOffset = App.Placement(V(0, 0, -69.55), App.Rotation())
sketch9.addGeometry(Part.LineSegment(V(98.1, 4, 0), V(98.1, 5, 0)), False)
sketch9.addGeometry(Part.ArcOfCircle(Part.Circle(V(98.1, 24.2, 0), V(0, 0, 1), 19.2), math.radians(-170), math.radians(-90)), False)
sketch9.addGeometry(Part.LineSegment(V(79.2, 20.8, 0), V(74.7, 20.8, 0)), False)
sketch9.addGeometry(Part.ArcOfCircle(Part.Circle(V(65, 24, 0), V(0, 0, 1), 10.2), math.radians(-162), math.radians(-18)), False)
sketch9.addGeometry(Part.LineSegment(V(55.3, 20.8, 0), V(50.8, 20.8, 0)), False)
sketch9.addGeometry(Part.ArcOfCircle(Part.Circle(V(31.9, 24.2, 0), V(0, 0, 1), 19.2), math.radians(-90), math.radians(-10)), False)
sketch9.addGeometry(Part.LineSegment(V(31.9, 5, 0), V(31.9, 4, 0)), False)
sketch9.addGeometry(Part.LineSegment(V(31.9, 4, 0), V(98.1, 4, 0)), False)
sketch9.addConstraint(Sketcher.Constraint("Coincident", 0, 2, 1, 2))
sketch9.addConstraint(Sketcher.Constraint("Coincident", 1, 1, 2, 1))
sketch9.addConstraint(Sketcher.Constraint("Coincident", 2, 2, 3, 2))
sketch9.addConstraint(Sketcher.Constraint("Coincident", 3, 1, 4, 1))
sketch9.addConstraint(Sketcher.Constraint("Coincident", 4, 2, 5, 2))
sketch9.addConstraint(Sketcher.Constraint("Coincident", 5, 1, 6, 1))
sketch9.addConstraint(Sketcher.Constraint("Coincident", 6, 2, 7, 1))
sketch9.addConstraint(Sketcher.Constraint("Coincident", 7, 2, 0, 1))
sketch9.addConstraint(Sketcher.Constraint("Vertical", 0))
sketch9.addConstraint(Sketcher.Constraint("Horizontal", 2))
sketch9.addConstraint(Sketcher.Constraint("Horizontal", 4))
sketch9.addConstraint(Sketcher.Constraint("Vertical", 6))
sketch9.addConstraint(Sketcher.Constraint("Horizontal", 7))
sketch9.addConstraint(Sketcher.Constraint("Equal", 1, 5))
sketch9.addConstraint(Sketcher.Constraint("Horizontal", 1, 3, 5, 3))
sketch9.addConstraint(Sketcher.Constraint("Horizontal", 2, 2, 3, 1))
sketch9.addConstraint(Sketcher.Constraint("Vertical", 1, 3, 0, 2))
sketch9.addConstraint(Sketcher.Constraint("Equal", 2, 4))
sketch9.addConstraint(Sketcher.Constraint("Radius", 3, 10.2))
sketch9.addConstraint(Sketcher.Constraint("DistanceY", 0, 1, 0, 2, 1.0))
sketch9.addConstraint(Sketcher.Constraint("DistanceX", -1, 1, 3, 3, 65.0))
sketch9.addConstraint(Sketcher.Constraint("DistanceY", -1, 1, 3, 3, 24.0))
sketch9.addConstraint(Sketcher.Constraint("DistanceY", -1, 1, 0, 2, 5.0))
sketch9.addConstraint(Sketcher.Constraint("DistanceY", -1, 1, 1, 1, 20.8))
sketch9.addConstraint(Sketcher.Constraint("Radius", 1, 19.247222))
sketch9.addConstraint(Sketcher.Constraint("DistanceX", 7, 1, 7, 2, 66.270911))
sketch9.addConstraint(Sketcher.Constraint("DistanceX", 2, 2, 2, 1, 4.514412))
pad8 = doc.addObject("PartDesign::Pad", "Pad007")
body.addObject(pad8)
pad8.Profile = sketch9
pad8.Length = 2
pad8.Reversed = True
doc.recompute()

fillet2 = doc.addObject("PartDesign::Fillet", "Fillet001")
body.addObject(fillet2)
fillet2.Base = (pad8, edges_at(pad8, [
    (-24.85, 98.135, 2),
    (-24.85, 31.865, 2),
    (-41.85, 31.865, 2),
    (-41.85, 98.135, 2),
    (-79.15, 31.865, 2),
    (-79.15, 98.135, 2),
    (-62.15, 98.135, 2),
    (-62.15, 31.865, 2),
]))
fillet2.Radius = 7

sketch10 = doc.addObject("Sketcher::SketchObject", "Sketch009")
body.addObject(sketch10)
sketch10.AttachmentSupport = (doc.XY_Plane, [""])
sketch10.MapMode = "FlatFace"
add_polygon(sketch10, [(-48, 105), (-48, 25), (-56, 25), (-56, 105)])
sketch10.addConstraint(Sketcher.Constraint("Vertical", 0))
sketch10.addConstraint(Sketcher.Constraint("Horizontal", 1))
sketch10.addConstraint(Sketcher.Constraint("Vertical", 2))
sketch10.addConstraint(Sketcher.Constraint("Horizontal", 3))
sketch10.addConstraint(Sketcher.Constraint("DistanceY", 0, 2, 0, 1, 80.0))
sketch10.addConstraint(Sketcher.Constraint("DistanceY", -1, 1, 0, 2, 25.0))
sketch10.addConstraint(Sketcher.Constraint("DistanceX", 1, 2, 1, 1, 8.45))
sketch10.addConstraint(Sketcher.Constraint("DistanceX", 0, 2, -1, 1, 47.775))
pocket2 = doc.addObject("PartDesign::Pocket", "Pocket001")
body.addObject(pocket2)
pocket2.Profile = sketch10
pocket2.Length = 14
pocket2.Reversed = True
doc.recompute()

fillet3 = doc.addObject("PartDesign::Fillet", "Fillet002")
body.addObject(fillet3)
fillet3.Base = (pocket2, edges_at(pocket2, [
    (-28.65, 75.383, 19.8),
    (-28.65, 78.383, 19.8),
    (-28.65, 54.617, 19.8),
    (-28.65, 51.617, 19.8),
    (-33.45, 50.801, 20.8),
    (-33.45, 79.199, 20.8),
    (-33.45, 74.685, 20.8),
    (-33.45, 55.315, 20.8),
    (-75.35, 78.383, 19.8),
    (-75.35, 75.383, 19.8),
    (-75.35, 54.617, 19.8),
    (-75.35, 51.617, 19.8),
    (-70.55, 79.199, 20.8),
    (-70.55, 74.685, 20.8),
    (-70.55, 55.315, 20.8),
    (-70.55, 50.801, 20.8),
]))
fillet3.Radius = 2

sketch11 = doc.addObject("Sketcher::SketchObject", "Sketch010")
body.addObject(sketch11)
sketch11.AttachmentSupport = (doc.YZ_Plane, [""])
sketch11.MapMode = "FlatFace"
sketch11.AttachmentOffset = App.Placement(V(0, 0, -24.85), App.Rotation())
sketch11.addGeometry(Part.Circle(V(75, 8.8, 0), V(0, 0, 1), 2.8), False)
sketch11.addGeometry(Part.Circle(V(55, 8.8, 0), V(0, 0, 1), 2.8), False)
sketch11.addConstraint(Sketcher.Constraint("Equal", 0, 1))
sketch11.addConstraint(Sketcher.Constraint("Horizontal", 0, 3, 1, 3))
sketch11.addConstraint(Sketcher.Constraint("Diameter", 0, 5.5))
sketch11.addConstraint(Sketcher.Constraint("DistanceX", -1, 1, 0, 3, 75.0))
sketch11.addConstraint(Sketcher.Constraint("DistanceX", -1, 1, 1, 3, 55.0))
sketch11.addConstraint(Sketcher.Constraint("DistanceY", -1, 1, 0, 3, 8.8))
pocket3 = doc.addObject("PartDesign::Pocket", "Pocket002")
body.addObject(pocket3)
pocket3.Profile = sketch11
pocket3.Type = "ThroughAll"
pocket3.Midplane = True

doc.recompute()
